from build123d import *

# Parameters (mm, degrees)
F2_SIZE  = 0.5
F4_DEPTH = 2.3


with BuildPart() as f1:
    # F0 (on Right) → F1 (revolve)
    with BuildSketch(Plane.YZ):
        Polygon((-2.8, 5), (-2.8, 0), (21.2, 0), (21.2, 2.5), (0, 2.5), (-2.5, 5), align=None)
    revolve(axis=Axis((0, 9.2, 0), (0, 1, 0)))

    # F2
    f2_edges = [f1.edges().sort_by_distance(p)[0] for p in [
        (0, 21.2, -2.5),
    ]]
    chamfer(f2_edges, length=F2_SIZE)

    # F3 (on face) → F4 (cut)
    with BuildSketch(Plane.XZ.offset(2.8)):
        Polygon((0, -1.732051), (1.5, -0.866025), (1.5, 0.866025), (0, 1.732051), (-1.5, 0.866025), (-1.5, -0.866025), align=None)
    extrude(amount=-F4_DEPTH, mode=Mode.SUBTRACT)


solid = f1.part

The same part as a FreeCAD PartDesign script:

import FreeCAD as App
import Part
import Sketcher
from FreeCAD import Vector
Q = App.Units.Quantity


def edges_at(feature, points):
    """Names of the edges that pass closest to the given points."""
    edges = feature.Shape.Edges
    near = lambda p: min(range(len(edges)), key=lambda i: edges[i].distToShape(Part.Vertex(*p))[0])
    return sorted({f"Edge{near(p) + 1}" for p in points})


def add_polygon(sketch, points):
    """Adds a closed chain of lines whose ends are joined by coincident constraints."""
    first, n = sketch.GeometryCount, len(points)
    for a, b in zip(points, points[1:] + points[:1]):
        sketch.addGeometry(Part.LineSegment(App.Vector(*a, 0), App.Vector(*b, 0)), False)
    for i in range(n):
        sketch.addConstraint(Sketcher.Constraint("Coincident", first + i, 2, first + (i + 1) % n, 1))

doc = App.newDocument("Part")
body = doc.addObject("PartDesign::Body", "Body")

sketch1 = doc.addObject("Sketcher::SketchObject", "Sketch")
body.addObject(sketch1)
sketch1.AttachmentSupport = (doc.YZ_Plane, [""])
sketch1.MapMode = "FlatFace"
add_polygon(sketch1, [(-2.8, 5), (-2.8, 0), (21.2, 0), (21.2, 2.5), (0, 2.5), (-2.5, 5)])
sketch1.addConstraint(Sketcher.Constraint("Vertical", 0))
sketch1.addConstraint(Sketcher.Constraint("Horizontal", 1))
sketch1.addConstraint(Sketcher.Constraint("Vertical", 2))
sketch1.addConstraint(Sketcher.Constraint("Horizontal", 3))
sketch1.addConstraint(Sketcher.Constraint("Horizontal", 5))
sketch1.addConstraint(Sketcher.Constraint("PointOnObject", 0, 2, -1))
sketch1.addConstraint(Sketcher.Constraint("PointOnObject", 3, 2, -2))
sketch1.addConstraint(Sketcher.Constraint("DistanceX", 1, 1, 1, 2, Q("24 mm")))
sketch1.addConstraint(Sketcher.Constraint("DistanceY", 0, 2, 0, 1, Q("5 mm")))
sketch1.addConstraint(Sketcher.Constraint("Angle", 4, Q("135 deg")))
sketch1.addConstraint(Sketcher.Constraint("DistanceX", 3, 2, 3, 1, Q("21.2 mm")))
sketch1.addConstraint(Sketcher.Constraint("DistanceX", 5, 2, 5, 1, Q("0.3 mm")))
revolution = doc.addObject("PartDesign::Revolution", "Revolution")
body.addObject(revolution)
revolution.Profile = sketch1
revolution.ReferenceAxis = (sketch1, ["H_Axis"])
revolution.Angle = 360
doc.recompute()

chamfer = doc.addObject("PartDesign::Chamfer", "Chamfer")
body.addObject(chamfer)
chamfer.Base = (revolution, edges_at(revolution, [(0, 21.2, -2.5)]))
chamfer.Size = 0.5

sketch2 = doc.addObject("Sketcher::SketchObject", "Sketch001")
body.addObject(sketch2)
sketch2.AttachmentSupport = (doc.XZ_Plane, [""])
sketch2.MapMode = "FlatFace"
sketch2.AttachmentOffset = App.Placement(Vector(0, 0, 2.8), App.Rotation())
add_polygon(sketch2, [(0, -1.7), (1.5, -0.9), (1.5, 0.9), (0, 1.7), (-1.5, 0.9), (-1.5, -0.9)])
sketch2.addConstraint(Sketcher.Constraint("Vertical", 1))
sketch2.addConstraint(Sketcher.Constraint("Vertical", 4))
sketch2.addConstraint(Sketcher.Constraint("Symmetric", 0, 2, 3, 2, -1, 1))
sketch2.addConstraint(Sketcher.Constraint("Symmetric", 2, 2, 5, 2, -1, 1))
sketch2.addConstraint(Sketcher.Constraint("PointOnObject", 2, 2, -2))
sketch2.addConstraint(Sketcher.Constraint("Parallel", 2, 5))
sketch2.addConstraint(Sketcher.Constraint("Horizontal", 1, 2, 3, 2))
sketch2.addConstraint(Sketcher.Constraint("Angle", 0, Q("30.000017 deg")))
sketch2.addConstraint(Sketcher.Constraint("DistanceX", 3, 2, 1, 2, Q("3 mm")))
sketch2.addConstraint(Sketcher.Constraint("DistanceY", 1, 1, 1, 2, Q("1.73205 mm")))
pocket1 = doc.addObject("PartDesign::Pocket", "Pocket")
body.addObject(pocket1)
pocket1.Profile = sketch2
pocket1.Length = 2.3

doc.recompute()
